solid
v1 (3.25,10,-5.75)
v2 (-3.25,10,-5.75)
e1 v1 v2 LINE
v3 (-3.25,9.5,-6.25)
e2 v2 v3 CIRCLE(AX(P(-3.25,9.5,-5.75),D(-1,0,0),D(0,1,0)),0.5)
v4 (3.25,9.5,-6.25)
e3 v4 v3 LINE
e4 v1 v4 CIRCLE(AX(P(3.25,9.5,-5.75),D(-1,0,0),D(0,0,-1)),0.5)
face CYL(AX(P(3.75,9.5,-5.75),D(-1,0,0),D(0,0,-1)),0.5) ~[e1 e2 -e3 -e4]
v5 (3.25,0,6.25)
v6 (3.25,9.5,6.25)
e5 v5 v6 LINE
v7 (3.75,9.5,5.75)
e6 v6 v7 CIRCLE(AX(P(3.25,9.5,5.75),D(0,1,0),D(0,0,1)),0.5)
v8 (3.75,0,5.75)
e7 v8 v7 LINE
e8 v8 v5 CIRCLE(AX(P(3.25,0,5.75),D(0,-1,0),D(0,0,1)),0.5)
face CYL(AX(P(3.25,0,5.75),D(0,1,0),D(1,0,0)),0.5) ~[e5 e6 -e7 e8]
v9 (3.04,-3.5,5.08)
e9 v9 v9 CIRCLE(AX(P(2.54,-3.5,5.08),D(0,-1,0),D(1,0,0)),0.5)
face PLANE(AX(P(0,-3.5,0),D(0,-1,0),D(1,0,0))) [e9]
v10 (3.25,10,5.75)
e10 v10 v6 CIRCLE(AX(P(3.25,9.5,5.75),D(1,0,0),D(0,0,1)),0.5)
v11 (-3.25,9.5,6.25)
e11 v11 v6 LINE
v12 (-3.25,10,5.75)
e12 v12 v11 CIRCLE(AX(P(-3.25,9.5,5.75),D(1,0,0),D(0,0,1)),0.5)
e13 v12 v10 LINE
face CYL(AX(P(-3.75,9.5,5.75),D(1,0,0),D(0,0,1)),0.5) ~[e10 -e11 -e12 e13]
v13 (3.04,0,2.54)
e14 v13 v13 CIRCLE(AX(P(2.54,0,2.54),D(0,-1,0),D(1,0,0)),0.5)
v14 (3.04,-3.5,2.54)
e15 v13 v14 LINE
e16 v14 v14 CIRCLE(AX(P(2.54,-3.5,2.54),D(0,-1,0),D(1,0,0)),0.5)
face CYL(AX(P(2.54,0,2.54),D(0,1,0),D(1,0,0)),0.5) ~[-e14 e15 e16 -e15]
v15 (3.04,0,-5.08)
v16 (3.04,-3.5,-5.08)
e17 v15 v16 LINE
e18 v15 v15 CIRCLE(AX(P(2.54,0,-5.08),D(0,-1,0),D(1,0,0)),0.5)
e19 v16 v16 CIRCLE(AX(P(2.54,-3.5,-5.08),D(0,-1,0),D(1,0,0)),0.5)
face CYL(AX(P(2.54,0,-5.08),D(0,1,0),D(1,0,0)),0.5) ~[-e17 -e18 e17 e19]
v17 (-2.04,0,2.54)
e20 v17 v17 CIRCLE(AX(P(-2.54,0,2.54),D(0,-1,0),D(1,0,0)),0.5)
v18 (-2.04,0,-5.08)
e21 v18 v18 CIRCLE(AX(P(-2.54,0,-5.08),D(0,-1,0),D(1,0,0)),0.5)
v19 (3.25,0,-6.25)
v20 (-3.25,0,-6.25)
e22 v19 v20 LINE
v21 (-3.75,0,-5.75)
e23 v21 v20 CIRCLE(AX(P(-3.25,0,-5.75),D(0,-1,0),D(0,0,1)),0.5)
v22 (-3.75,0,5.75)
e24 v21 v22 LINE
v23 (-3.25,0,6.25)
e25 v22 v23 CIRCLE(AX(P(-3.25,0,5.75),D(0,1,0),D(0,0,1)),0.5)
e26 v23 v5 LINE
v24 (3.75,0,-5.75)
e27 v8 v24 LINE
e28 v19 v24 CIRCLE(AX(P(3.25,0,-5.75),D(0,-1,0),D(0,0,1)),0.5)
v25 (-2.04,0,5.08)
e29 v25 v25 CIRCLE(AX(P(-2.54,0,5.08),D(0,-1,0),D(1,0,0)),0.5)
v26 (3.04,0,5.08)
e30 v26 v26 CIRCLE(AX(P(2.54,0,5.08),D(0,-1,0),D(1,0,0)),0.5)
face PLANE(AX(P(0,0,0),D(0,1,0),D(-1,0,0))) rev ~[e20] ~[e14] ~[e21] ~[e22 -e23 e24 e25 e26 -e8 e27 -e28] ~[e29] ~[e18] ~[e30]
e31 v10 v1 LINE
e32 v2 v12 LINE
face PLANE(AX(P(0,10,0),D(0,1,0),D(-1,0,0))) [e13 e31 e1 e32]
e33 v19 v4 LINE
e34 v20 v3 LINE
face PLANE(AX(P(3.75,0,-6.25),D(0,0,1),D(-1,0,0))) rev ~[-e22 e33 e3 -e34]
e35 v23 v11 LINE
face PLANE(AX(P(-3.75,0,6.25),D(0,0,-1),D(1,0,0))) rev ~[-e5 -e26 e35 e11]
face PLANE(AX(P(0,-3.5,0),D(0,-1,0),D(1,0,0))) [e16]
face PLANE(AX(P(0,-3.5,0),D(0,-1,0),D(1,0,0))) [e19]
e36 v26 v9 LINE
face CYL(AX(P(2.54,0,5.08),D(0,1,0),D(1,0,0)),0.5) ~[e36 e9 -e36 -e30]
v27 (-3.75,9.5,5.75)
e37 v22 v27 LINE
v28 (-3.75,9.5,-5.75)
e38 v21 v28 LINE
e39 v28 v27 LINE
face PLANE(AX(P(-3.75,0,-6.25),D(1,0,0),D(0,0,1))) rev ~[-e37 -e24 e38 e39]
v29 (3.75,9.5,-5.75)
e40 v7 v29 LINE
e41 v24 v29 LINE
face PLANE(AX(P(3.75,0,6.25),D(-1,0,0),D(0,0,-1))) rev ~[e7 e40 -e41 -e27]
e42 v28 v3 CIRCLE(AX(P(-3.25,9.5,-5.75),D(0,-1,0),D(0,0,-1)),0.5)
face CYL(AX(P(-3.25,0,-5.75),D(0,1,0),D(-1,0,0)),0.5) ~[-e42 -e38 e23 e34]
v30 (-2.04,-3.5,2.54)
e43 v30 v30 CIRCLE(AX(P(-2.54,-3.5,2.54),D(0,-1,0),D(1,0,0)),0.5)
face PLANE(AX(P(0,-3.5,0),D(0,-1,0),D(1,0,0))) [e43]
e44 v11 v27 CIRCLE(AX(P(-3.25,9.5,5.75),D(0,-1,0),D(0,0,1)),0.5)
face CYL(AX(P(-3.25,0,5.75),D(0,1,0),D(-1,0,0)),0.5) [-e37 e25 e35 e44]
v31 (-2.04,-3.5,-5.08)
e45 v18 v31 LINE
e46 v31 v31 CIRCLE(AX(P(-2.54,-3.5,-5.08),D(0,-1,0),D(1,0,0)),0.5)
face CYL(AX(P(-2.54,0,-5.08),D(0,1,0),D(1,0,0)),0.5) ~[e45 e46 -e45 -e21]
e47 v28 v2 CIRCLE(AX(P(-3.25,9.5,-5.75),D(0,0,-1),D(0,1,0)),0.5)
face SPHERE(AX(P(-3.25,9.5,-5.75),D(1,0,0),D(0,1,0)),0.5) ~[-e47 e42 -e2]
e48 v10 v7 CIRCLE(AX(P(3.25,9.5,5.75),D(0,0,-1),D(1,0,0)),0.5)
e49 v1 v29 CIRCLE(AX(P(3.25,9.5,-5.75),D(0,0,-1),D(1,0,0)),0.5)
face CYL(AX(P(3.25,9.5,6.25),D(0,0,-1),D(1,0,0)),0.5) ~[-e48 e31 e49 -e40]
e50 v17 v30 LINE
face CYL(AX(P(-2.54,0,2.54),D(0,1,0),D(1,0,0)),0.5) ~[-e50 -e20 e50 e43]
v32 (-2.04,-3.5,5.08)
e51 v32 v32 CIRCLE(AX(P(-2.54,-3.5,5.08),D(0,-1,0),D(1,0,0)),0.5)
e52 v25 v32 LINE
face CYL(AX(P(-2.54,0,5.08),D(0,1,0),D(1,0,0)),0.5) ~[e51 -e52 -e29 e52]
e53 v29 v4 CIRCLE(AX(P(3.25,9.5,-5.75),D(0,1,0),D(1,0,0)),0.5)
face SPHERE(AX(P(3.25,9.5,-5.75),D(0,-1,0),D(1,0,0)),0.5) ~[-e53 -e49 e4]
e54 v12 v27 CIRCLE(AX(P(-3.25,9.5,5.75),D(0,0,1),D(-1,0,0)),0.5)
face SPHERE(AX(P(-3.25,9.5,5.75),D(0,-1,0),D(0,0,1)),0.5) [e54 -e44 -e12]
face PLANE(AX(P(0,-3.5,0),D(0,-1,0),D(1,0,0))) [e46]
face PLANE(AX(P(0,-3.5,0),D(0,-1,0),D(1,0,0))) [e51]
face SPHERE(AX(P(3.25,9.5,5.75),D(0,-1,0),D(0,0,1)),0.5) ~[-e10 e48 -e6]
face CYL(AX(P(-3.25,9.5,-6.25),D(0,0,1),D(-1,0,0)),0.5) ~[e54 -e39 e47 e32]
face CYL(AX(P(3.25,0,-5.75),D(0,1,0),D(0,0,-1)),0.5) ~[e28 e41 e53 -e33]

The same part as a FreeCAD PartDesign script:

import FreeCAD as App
import Part
import Sketcher
from FreeCAD import Vector
Q = App.Units.Quantity


def edges_at(feature, points):
    """Names of the edges that pass closest to the given points."""
    edges = feature.Shape.Edges
    near = lambda p: min(range(len(edges)), key=lambda i: edges[i].distToShape(Part.Vertex(*p))[0])
    return sorted({f"Edge{near(p) + 1}" for p in points})


def add_polygon(sketch, points):
    """Adds a closed chain of lines whose ends are joined by coincident constraints."""
    first, n = sketch.GeometryCount, len(points)
    for a, b in zip(points, points[1:] + points[:1]):
        sketch.addGeometry(Part.LineSegment(App.Vector(*a, 0), App.Vector(*b, 0)), False)
    for i in range(n):
        sketch.addConstraint(Sketcher.Constraint("Coincident", first + i, 2, first + (i + 1) % n, 1))

doc = App.newDocument("Part")
params = doc.addObject("Spreadsheet::Sheet", "Params")
for row, (alias, value) in enumerate([
    ("sketch1_width", "7.5 mm"),
    ("sketch1_height", "12.5 mm"),
    ("pad1_length", "10 mm"),
    ("fillet_radius", "0.5 mm"),
    ("sketch2_diameter", "1 mm"),
    ("pad2_length", "3.5 mm"),
], start=1):
    params.set(f"A{row}", alias)
    params.set(f"B{row}", "=" + value)
    params.setAlias(f"B{row}", alias)

body = doc.addObject("PartDesign::Body", "Body")

# Sketch on XZ plane
sketch1 = body.newObject("Sketcher::SketchObject", "Sketch")
sketch1.AttachmentSupport = (doc.getObject("XZ_Plane"), [""])
sketch1.MapMode = "FlatFace"
add_polygon(sketch1, [(-4, -6), (-4, 6), (4, 6), (4, -6)])  # lines 0-3
sketch1.addConstraint([
    Sketcher.Constraint("Vertical", 0),
    Sketcher.Constraint("Horizontal", 1),
    Sketcher.Constraint("Vertical", 2),
    Sketcher.Constraint("Horizontal", 3),
    Sketcher.Constraint("Symmetric", 0, 2, 2, 2, -1, 1),
    Sketcher.Constraint("DistanceX", 1, 1, 1, 2, Q("7.5 mm")),
    Sketcher.Constraint("DistanceY", 0, 1, 0, 2, Q("12.5 mm")),
])
sketch1.setExpression("Constraints[9]", "Params.sketch1_width")
sketch1.setExpression("Constraints[10]", "Params.sketch1_height")
pad1 = body.newObject("PartDesign::Pad", "Pad")
pad1.Profile = sketch1
pad1.setExpression("Length", "Params.pad1_length")
pad1.Reversed = True
doc.recompute()

fillet = body.newObject("PartDesign::Fillet", "Fillet")
fillet.Base = (pad1, edges_at(pad1, [
    (3.75, 5, -6.25),
    (3.75, 5, 6.25),
    (-3.75, 5, 6.25),
    (0, 10, 6.25),
    (3.75, 10, 0),
    (0, 10, -6.25),
    (-3.75, 10, 0),
    (-3.75, 5, -6.25),
]))
fillet.setExpression("Radius", "Params.fillet_radius")

# Sketch on XZ plane
sketch2 = body.newObject("Sketcher::SketchObject", "Sketch001")
sketch2.AttachmentSupport = (doc.getObject("XZ_Plane"), [""])
sketch2.MapMode = "FlatFace"
sketch2.addGeometry([
    Part.Circle(Vector(2.5, 5.1, 0), Vector(0, 0, 1), 0.5),  # 0
    Part.Circle(Vector(2.5, 2.5, 0), Vector(0, 0, 1), 0.5),  # 1
    Part.Circle(Vector(2.5, -5.1, 0), Vector(0, 0, 1), 0.5),  # 2
    Part.Circle(Vector(-2.5, 5.1, 0), Vector(0, 0, 1), 0.5),  # 3
    Part.Circle(Vector(-2.5, 2.5, 0), Vector(0, 0, 1), 0.5),  # 4
    Part.Circle(Vector(-2.5, -5.1, 0), Vector(0, 0, 1), 0.5),  # 5
], False)
sketch2.addConstraint([
    Sketcher.Constraint("Equal", 0, 1),
    Sketcher.Constraint("Equal", 1, 2),
    Sketcher.Constraint("Equal", 2, 3),
    Sketcher.Constraint("Equal", 3, 4),
    Sketcher.Constraint("Equal", 4, 5),
    Sketcher.Constraint("Symmetric", 2, 3, 3, 3, -1, 1),
    Sketcher.Constraint("Symmetric", 0, 3, 5, 3, -1, 1),
    Sketcher.Constraint("Symmetric", 0, 3, 3, 3, -2),
    Sketcher.Constraint("Symmetric", 1, 3, 4, 3, -2),
    Sketcher.Constraint("Vertical", 0, 3, 1, 3),
    Sketcher.Constraint("Diameter", 0, Q("1 mm")),
    Sketcher.Constraint("DistanceX", -1, 1, 0, 3, Q("2.54 mm")),
    Sketcher.Constraint("DistanceY", -1, 1, 0, 3, Q("5.08 mm")),
    Sketcher.Constraint("DistanceY", -1, 1, 1, 3, Q("2.54 mm")),
])
sketch2.setExpression("Constraints[10]", "Params.sketch2_diameter")
pad2 = body.newObject("PartDesign::Pad", "Pad001")
pad2.Profile = sketch2
pad2.setExpression("Length", "Params.pad2_length")

doc.recompute()
